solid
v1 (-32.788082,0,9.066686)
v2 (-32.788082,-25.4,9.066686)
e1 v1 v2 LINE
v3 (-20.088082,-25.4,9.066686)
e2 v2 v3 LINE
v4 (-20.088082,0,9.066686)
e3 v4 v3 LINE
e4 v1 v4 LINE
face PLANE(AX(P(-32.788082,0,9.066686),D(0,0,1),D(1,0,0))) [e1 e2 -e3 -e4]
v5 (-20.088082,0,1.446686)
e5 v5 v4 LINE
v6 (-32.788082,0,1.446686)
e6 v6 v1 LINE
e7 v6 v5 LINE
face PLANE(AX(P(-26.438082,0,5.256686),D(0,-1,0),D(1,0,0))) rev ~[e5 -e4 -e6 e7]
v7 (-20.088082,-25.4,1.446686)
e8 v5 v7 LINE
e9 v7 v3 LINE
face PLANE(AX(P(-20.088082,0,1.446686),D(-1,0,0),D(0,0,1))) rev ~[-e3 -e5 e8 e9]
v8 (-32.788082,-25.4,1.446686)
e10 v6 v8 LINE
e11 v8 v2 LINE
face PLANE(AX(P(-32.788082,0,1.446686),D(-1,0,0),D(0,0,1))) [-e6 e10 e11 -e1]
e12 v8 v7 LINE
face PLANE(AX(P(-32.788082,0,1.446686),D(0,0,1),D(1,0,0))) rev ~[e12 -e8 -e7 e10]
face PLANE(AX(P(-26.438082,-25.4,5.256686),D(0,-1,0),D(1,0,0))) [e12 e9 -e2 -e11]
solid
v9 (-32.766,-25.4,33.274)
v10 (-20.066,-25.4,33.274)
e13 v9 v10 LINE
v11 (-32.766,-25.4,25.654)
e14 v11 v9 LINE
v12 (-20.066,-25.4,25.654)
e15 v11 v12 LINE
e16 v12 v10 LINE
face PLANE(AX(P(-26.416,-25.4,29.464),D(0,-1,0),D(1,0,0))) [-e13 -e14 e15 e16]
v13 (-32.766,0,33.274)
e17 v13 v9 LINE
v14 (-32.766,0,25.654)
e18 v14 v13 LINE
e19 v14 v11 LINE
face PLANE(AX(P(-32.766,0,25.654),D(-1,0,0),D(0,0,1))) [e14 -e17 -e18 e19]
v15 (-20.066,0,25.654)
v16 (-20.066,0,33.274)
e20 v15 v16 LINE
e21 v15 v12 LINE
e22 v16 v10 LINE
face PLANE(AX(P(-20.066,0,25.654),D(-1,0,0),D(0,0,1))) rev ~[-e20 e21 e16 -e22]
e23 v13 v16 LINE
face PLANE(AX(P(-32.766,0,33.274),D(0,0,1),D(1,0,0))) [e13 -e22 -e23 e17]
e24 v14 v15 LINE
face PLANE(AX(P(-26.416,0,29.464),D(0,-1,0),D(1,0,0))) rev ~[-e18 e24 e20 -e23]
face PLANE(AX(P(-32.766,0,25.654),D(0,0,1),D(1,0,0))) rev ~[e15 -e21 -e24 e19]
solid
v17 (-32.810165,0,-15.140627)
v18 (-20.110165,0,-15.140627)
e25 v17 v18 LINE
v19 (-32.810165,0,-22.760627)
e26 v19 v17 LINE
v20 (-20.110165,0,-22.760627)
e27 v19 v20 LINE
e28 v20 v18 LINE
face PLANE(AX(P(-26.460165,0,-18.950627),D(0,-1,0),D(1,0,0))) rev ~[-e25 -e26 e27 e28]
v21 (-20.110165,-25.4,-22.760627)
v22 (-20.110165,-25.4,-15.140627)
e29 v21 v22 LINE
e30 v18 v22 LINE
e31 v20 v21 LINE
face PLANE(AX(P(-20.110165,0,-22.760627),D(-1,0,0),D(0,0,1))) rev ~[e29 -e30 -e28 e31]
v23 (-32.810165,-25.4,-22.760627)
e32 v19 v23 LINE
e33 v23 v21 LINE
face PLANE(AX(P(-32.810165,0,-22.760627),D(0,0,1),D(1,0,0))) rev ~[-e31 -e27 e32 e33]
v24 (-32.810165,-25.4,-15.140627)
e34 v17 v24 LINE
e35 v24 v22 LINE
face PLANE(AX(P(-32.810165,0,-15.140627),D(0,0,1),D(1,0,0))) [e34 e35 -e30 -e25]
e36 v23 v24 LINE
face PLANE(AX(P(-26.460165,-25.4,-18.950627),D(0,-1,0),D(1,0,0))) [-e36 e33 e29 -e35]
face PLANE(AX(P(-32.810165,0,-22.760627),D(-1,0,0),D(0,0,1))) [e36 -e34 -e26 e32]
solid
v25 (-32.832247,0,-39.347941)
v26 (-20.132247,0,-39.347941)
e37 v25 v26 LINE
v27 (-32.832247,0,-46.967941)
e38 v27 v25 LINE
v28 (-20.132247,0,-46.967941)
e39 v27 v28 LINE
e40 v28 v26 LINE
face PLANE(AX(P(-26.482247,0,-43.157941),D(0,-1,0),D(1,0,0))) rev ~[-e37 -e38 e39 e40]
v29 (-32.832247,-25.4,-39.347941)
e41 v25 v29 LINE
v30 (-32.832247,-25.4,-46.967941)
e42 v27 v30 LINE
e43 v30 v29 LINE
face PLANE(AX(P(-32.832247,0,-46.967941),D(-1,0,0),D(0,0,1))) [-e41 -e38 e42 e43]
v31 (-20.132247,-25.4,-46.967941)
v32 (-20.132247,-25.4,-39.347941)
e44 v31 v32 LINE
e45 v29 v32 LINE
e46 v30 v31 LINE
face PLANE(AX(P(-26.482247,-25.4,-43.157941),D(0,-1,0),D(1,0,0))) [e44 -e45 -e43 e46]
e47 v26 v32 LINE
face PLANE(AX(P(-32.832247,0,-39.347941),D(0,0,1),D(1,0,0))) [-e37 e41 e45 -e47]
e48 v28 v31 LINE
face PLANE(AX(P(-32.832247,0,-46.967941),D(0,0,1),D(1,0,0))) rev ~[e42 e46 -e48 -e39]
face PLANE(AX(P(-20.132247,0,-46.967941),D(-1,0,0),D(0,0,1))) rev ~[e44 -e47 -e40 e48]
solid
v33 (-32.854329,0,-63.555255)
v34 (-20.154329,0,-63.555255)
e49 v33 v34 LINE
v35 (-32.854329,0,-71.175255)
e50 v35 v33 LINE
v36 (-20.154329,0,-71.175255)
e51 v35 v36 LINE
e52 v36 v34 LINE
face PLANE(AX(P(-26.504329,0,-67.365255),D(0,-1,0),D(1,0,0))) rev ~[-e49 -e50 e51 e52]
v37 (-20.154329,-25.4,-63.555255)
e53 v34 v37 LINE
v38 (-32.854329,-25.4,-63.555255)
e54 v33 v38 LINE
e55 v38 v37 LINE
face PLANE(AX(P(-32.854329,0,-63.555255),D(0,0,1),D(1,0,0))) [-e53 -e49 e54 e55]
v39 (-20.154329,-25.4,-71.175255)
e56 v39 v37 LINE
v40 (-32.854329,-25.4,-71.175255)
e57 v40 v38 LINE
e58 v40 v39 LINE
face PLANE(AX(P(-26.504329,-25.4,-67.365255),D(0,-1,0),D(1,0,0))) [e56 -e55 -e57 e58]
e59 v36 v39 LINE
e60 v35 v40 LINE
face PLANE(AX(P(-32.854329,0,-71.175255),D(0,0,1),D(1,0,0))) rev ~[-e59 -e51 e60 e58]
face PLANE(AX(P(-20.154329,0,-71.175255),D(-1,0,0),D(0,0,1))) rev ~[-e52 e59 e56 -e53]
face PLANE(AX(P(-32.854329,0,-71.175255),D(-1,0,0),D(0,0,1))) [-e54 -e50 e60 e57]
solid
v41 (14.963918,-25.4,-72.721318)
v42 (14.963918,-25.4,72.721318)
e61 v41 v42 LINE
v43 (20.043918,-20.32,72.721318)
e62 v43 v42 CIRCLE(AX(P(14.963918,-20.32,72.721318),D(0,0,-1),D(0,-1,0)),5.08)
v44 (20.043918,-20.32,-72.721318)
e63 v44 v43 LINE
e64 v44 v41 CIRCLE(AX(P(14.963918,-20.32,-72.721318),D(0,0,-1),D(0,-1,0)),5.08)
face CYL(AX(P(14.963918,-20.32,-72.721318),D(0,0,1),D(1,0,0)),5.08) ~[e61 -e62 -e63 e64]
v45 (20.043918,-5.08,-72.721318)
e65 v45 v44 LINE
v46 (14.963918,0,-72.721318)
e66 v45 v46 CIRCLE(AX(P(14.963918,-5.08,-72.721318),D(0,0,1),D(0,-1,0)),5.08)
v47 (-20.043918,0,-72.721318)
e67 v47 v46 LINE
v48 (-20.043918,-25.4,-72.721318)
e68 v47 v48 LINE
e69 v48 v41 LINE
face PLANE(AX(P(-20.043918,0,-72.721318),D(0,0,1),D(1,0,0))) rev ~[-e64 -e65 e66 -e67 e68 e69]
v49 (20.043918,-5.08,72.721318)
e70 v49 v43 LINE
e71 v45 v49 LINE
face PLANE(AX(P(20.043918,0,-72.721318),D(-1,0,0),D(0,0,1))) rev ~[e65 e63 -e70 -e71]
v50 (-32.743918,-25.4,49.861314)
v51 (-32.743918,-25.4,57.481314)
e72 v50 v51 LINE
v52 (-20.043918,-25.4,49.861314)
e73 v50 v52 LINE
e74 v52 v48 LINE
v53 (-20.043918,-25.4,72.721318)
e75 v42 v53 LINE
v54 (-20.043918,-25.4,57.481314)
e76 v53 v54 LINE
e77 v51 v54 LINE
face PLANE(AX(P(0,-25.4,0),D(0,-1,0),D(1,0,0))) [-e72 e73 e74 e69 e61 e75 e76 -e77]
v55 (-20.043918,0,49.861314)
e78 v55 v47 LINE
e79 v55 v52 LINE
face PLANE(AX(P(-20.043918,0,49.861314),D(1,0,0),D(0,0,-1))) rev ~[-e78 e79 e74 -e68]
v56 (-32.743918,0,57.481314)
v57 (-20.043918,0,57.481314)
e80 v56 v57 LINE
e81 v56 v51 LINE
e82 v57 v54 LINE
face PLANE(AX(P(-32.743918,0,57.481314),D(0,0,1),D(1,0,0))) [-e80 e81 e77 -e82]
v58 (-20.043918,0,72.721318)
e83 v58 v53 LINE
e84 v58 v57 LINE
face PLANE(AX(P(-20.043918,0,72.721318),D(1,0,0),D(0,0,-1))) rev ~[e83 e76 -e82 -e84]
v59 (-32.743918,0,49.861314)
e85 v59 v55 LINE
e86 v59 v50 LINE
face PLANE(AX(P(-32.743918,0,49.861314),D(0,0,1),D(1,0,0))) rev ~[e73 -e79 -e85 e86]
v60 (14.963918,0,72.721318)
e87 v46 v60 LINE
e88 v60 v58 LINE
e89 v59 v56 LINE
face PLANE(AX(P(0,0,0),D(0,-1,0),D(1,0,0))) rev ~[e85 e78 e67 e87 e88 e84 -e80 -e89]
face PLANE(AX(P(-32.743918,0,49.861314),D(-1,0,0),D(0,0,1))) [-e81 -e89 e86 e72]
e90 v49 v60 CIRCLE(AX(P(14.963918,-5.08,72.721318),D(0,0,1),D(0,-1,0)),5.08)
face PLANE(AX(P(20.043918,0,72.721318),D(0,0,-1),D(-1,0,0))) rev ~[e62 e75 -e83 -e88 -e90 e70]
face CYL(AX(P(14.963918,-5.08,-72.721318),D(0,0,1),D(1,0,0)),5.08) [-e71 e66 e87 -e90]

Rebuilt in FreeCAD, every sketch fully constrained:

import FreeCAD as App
import Part
import Sketcher

V = App.Vector
Q = App.Units.Quantity


def edges_at(feature, points):
    """Names of the edges that pass closest to the given points."""
    edges = feature.Shape.Edges
    near = lambda p: min(range(len(edges)), key=lambda i: edges[i].distToShape(Part.Vertex(*p))[0])
    return sorted({f"Edge{near(p) + 1}" for p in points})


def add_polygon(sketch, points):
    """Adds a closed chain of lines whose ends are joined by coincident constraints."""
    first, n = sketch.GeometryCount, len(points)
    for a, b in zip(points, points[1:] + points[:1]):
        sketch.addGeometry(Part.LineSegment(App.Vector(*a, 0), App.Vector(*b, 0)), False)
    for i in range(n):
        sketch.addConstraint(Sketcher.Constraint("Coincident", first + i, 2, first + (i + 1) % n, 1))

doc = App.newDocument("Part")
body = doc.addObject("PartDesign::Body", "Body")
body.AllowCompound = True

# Sketch on XZ plane
sketch1 = body.newObject("Sketcher::SketchObject", "Sketch")
sketch1.AttachmentSupport = (doc.getObject("XZ_Plane"), [""])
sketch1.MapMode = "FlatFace"
add_polygon(sketch1, [(20.043918, -72.721318), (20.043918, 72.721318), (-20.043918, 72.721318), (-20.043918, 57.481314), (-32.743918, 57.481314), (-32.743918, 49.861314), (-20.043918, 49.861314), (-20.043918, -72.721318)])  # lines 0-7
add_polygon(sketch1, [(-32.766, 33.274), (-32.766, 25.654), (-20.066, 25.654), (-20.066, 33.274)])  # lines 8-11
add_polygon(sketch1, [(-32.788082, 9.066686), (-32.788082, 1.446686), (-20.088082, 1.446686), (-20.088082, 9.066686)])  # lines 12-15
add_polygon(sketch1, [(-32.810165, -15.140627), (-32.810165, -22.760627), (-20.110165, -22.760627), (-20.110165, -15.140627)])  # lines 16-19
add_polygon(sketch1, [(-32.832247, -39.347941), (-32.832247, -46.967941), (-20.132247, -46.967941), (-20.132247, -39.347941)])  # lines 20-23
add_polygon(sketch1, [(-32.854329, -63.555255), (-32.854329, -71.175255), (-20.154329, -71.175255), (-20.154329, -63.555255)])  # lines 24-27
sketch1.addConstraint(Sketcher.Constraint("Vertical", 0))
sketch1.addConstraint(Sketcher.Constraint("Horizontal", 1))
sketch1.addConstraint(Sketcher.Constraint("Vertical", 2))
sketch1.addConstraint(Sketcher.Constraint("Horizontal", 3))
sketch1.addConstraint(Sketcher.Constraint("Vertical", 4))
sketch1.addConstraint(Sketcher.Constraint("Horizontal", 5))
sketch1.addConstraint(Sketcher.Constraint("Vertical", 6))
sketch1.addConstraint(Sketcher.Constraint("Horizontal", 7))
sketch1.addConstraint(Sketcher.Constraint("Vertical", 8))
sketch1.addConstraint(Sketcher.Constraint("Horizontal", 9))
sketch1.addConstraint(Sketcher.Constraint("Vertical", 10))
sketch1.addConstraint(Sketcher.Constraint("Horizontal", 11))
sketch1.addConstraint(Sketcher.Constraint("Vertical", 12))
sketch1.addConstraint(Sketcher.Constraint("Horizontal", 13))
sketch1.addConstraint(Sketcher.Constraint("Vertical", 14))
sketch1.addConstraint(Sketcher.Constraint("Horizontal", 15))
sketch1.addConstraint(Sketcher.Constraint("Vertical", 16))
sketch1.addConstraint(Sketcher.Constraint("Horizontal", 17))
sketch1.addConstraint(Sketcher.Constraint("Vertical", 18))
sketch1.addConstraint(Sketcher.Constraint("Horizontal", 19))
sketch1.addConstraint(Sketcher.Constraint("Vertical", 20))
sketch1.addConstraint(Sketcher.Constraint("Horizontal", 21))
sketch1.addConstraint(Sketcher.Constraint("Vertical", 22))
sketch1.addConstraint(Sketcher.Constraint("Horizontal", 23))
sketch1.addConstraint(Sketcher.Constraint("Vertical", 24))
sketch1.addConstraint(Sketcher.Constraint("Horizontal", 25))
sketch1.addConstraint(Sketcher.Constraint("Vertical", 26))
sketch1.addConstraint(Sketcher.Constraint("Horizontal", 27))
sketch1.addConstraint(Sketcher.Constraint("Symmetric", 0, 2, 6, 2, -1, 1))
sketch1.addConstraint(Sketcher.Constraint("Vertical", 2, 2, 5, 2))
sketch1.addConstraint(Sketcher.Constraint("Equal", 5, 9))
sketch1.addConstraint(Sketcher.Constraint("Equal", 11, 13))
sketch1.addConstraint(Sketcher.Constraint("Equal", 15, 17))
sketch1.addConstraint(Sketcher.Constraint("Equal", 19, 21))
sketch1.addConstraint(Sketcher.Constraint("Equal", 23, 25))
sketch1.addConstraint(Sketcher.Constraint("Equal", 4, 8))
sketch1.addConstraint(Sketcher.Constraint("Equal", 10, 12))
sketch1.addConstraint(Sketcher.Constraint("Equal", 14, 16))
sketch1.addConstraint(Sketcher.Constraint("Equal", 18, 20))
sketch1.addConstraint(Sketcher.Constraint("Equal", 22, 24))
sketch1.addConstraint(Sketcher.Constraint("DistanceX", 3, 2, 3, 1, Q("0.5 in")))
sketch1.addConstraint(Sketcher.Constraint("DistanceY", 2, 2, 2, 1, Q("0.6000002 in")))
sketch1.addConstraint(Sketcher.Constraint("DistanceY", 4, 2, 4, 1, Q("0.3 in")))
sketch1.addConstraint(Sketcher.Constraint("DistanceX", 8, 2, -1, 1, Q("1.29 in")))
sketch1.addConstraint(Sketcher.Constraint("DistanceY", -1, 1, 8, 2, Q("1.01 in")))
sketch1.addConstraint(Sketcher.Constraint("DistanceY", 6, 2, 6, 1, Q("122.582632 mm")))
sketch1.addConstraint(Sketcher.Constraint("DistanceX", 1, 2, 1, 1, Q("40.087836 mm")))
sketch1.addConstraint(Sketcher.Constraint("DistanceX", 13, 2, -1, 1, Q("20.088082 mm")))
sketch1.addConstraint(Sketcher.Constraint("DistanceY", 20, 2, -1, 1, Q("46.967941 mm")))
sketch1.addConstraint(Sketcher.Constraint("DistanceX", 24, 2, -1, 1, Q("32.854329 mm")))
sketch1.addConstraint(Sketcher.Constraint("DistanceX", 20, 2, 6, 2, Q("12.788329 mm")))
sketch1.addConstraint(Sketcher.Constraint("DistanceY", -1, 1, 12, 2, Q("1.446686 mm")))
sketch1.addConstraint(Sketcher.Constraint("DistanceX", 16, 2, -1, 1, Q("32.810165 mm")))
sketch1.addConstraint(Sketcher.Constraint("DistanceY", 16, 2, -1, 1, Q("22.760627 mm")))
sketch1.addConstraint(Sketcher.Constraint("DistanceY", 24, 2, -1, 1, Q("71.175255 mm")))
pad1 = body.newObject("PartDesign::Pad", "Pad")
pad1.Profile = sketch1
pad1.Length = Q("1 in")
doc.recompute()

fillet = body.newObject("PartDesign::Fillet", "Fillet")
fillet.Base = (pad1, edges_at(pad1, [(20.044, -25.4, 0), (20.044, 0, 0)]))
fillet.Radius = Q("0.2 in")

doc.recompute()
